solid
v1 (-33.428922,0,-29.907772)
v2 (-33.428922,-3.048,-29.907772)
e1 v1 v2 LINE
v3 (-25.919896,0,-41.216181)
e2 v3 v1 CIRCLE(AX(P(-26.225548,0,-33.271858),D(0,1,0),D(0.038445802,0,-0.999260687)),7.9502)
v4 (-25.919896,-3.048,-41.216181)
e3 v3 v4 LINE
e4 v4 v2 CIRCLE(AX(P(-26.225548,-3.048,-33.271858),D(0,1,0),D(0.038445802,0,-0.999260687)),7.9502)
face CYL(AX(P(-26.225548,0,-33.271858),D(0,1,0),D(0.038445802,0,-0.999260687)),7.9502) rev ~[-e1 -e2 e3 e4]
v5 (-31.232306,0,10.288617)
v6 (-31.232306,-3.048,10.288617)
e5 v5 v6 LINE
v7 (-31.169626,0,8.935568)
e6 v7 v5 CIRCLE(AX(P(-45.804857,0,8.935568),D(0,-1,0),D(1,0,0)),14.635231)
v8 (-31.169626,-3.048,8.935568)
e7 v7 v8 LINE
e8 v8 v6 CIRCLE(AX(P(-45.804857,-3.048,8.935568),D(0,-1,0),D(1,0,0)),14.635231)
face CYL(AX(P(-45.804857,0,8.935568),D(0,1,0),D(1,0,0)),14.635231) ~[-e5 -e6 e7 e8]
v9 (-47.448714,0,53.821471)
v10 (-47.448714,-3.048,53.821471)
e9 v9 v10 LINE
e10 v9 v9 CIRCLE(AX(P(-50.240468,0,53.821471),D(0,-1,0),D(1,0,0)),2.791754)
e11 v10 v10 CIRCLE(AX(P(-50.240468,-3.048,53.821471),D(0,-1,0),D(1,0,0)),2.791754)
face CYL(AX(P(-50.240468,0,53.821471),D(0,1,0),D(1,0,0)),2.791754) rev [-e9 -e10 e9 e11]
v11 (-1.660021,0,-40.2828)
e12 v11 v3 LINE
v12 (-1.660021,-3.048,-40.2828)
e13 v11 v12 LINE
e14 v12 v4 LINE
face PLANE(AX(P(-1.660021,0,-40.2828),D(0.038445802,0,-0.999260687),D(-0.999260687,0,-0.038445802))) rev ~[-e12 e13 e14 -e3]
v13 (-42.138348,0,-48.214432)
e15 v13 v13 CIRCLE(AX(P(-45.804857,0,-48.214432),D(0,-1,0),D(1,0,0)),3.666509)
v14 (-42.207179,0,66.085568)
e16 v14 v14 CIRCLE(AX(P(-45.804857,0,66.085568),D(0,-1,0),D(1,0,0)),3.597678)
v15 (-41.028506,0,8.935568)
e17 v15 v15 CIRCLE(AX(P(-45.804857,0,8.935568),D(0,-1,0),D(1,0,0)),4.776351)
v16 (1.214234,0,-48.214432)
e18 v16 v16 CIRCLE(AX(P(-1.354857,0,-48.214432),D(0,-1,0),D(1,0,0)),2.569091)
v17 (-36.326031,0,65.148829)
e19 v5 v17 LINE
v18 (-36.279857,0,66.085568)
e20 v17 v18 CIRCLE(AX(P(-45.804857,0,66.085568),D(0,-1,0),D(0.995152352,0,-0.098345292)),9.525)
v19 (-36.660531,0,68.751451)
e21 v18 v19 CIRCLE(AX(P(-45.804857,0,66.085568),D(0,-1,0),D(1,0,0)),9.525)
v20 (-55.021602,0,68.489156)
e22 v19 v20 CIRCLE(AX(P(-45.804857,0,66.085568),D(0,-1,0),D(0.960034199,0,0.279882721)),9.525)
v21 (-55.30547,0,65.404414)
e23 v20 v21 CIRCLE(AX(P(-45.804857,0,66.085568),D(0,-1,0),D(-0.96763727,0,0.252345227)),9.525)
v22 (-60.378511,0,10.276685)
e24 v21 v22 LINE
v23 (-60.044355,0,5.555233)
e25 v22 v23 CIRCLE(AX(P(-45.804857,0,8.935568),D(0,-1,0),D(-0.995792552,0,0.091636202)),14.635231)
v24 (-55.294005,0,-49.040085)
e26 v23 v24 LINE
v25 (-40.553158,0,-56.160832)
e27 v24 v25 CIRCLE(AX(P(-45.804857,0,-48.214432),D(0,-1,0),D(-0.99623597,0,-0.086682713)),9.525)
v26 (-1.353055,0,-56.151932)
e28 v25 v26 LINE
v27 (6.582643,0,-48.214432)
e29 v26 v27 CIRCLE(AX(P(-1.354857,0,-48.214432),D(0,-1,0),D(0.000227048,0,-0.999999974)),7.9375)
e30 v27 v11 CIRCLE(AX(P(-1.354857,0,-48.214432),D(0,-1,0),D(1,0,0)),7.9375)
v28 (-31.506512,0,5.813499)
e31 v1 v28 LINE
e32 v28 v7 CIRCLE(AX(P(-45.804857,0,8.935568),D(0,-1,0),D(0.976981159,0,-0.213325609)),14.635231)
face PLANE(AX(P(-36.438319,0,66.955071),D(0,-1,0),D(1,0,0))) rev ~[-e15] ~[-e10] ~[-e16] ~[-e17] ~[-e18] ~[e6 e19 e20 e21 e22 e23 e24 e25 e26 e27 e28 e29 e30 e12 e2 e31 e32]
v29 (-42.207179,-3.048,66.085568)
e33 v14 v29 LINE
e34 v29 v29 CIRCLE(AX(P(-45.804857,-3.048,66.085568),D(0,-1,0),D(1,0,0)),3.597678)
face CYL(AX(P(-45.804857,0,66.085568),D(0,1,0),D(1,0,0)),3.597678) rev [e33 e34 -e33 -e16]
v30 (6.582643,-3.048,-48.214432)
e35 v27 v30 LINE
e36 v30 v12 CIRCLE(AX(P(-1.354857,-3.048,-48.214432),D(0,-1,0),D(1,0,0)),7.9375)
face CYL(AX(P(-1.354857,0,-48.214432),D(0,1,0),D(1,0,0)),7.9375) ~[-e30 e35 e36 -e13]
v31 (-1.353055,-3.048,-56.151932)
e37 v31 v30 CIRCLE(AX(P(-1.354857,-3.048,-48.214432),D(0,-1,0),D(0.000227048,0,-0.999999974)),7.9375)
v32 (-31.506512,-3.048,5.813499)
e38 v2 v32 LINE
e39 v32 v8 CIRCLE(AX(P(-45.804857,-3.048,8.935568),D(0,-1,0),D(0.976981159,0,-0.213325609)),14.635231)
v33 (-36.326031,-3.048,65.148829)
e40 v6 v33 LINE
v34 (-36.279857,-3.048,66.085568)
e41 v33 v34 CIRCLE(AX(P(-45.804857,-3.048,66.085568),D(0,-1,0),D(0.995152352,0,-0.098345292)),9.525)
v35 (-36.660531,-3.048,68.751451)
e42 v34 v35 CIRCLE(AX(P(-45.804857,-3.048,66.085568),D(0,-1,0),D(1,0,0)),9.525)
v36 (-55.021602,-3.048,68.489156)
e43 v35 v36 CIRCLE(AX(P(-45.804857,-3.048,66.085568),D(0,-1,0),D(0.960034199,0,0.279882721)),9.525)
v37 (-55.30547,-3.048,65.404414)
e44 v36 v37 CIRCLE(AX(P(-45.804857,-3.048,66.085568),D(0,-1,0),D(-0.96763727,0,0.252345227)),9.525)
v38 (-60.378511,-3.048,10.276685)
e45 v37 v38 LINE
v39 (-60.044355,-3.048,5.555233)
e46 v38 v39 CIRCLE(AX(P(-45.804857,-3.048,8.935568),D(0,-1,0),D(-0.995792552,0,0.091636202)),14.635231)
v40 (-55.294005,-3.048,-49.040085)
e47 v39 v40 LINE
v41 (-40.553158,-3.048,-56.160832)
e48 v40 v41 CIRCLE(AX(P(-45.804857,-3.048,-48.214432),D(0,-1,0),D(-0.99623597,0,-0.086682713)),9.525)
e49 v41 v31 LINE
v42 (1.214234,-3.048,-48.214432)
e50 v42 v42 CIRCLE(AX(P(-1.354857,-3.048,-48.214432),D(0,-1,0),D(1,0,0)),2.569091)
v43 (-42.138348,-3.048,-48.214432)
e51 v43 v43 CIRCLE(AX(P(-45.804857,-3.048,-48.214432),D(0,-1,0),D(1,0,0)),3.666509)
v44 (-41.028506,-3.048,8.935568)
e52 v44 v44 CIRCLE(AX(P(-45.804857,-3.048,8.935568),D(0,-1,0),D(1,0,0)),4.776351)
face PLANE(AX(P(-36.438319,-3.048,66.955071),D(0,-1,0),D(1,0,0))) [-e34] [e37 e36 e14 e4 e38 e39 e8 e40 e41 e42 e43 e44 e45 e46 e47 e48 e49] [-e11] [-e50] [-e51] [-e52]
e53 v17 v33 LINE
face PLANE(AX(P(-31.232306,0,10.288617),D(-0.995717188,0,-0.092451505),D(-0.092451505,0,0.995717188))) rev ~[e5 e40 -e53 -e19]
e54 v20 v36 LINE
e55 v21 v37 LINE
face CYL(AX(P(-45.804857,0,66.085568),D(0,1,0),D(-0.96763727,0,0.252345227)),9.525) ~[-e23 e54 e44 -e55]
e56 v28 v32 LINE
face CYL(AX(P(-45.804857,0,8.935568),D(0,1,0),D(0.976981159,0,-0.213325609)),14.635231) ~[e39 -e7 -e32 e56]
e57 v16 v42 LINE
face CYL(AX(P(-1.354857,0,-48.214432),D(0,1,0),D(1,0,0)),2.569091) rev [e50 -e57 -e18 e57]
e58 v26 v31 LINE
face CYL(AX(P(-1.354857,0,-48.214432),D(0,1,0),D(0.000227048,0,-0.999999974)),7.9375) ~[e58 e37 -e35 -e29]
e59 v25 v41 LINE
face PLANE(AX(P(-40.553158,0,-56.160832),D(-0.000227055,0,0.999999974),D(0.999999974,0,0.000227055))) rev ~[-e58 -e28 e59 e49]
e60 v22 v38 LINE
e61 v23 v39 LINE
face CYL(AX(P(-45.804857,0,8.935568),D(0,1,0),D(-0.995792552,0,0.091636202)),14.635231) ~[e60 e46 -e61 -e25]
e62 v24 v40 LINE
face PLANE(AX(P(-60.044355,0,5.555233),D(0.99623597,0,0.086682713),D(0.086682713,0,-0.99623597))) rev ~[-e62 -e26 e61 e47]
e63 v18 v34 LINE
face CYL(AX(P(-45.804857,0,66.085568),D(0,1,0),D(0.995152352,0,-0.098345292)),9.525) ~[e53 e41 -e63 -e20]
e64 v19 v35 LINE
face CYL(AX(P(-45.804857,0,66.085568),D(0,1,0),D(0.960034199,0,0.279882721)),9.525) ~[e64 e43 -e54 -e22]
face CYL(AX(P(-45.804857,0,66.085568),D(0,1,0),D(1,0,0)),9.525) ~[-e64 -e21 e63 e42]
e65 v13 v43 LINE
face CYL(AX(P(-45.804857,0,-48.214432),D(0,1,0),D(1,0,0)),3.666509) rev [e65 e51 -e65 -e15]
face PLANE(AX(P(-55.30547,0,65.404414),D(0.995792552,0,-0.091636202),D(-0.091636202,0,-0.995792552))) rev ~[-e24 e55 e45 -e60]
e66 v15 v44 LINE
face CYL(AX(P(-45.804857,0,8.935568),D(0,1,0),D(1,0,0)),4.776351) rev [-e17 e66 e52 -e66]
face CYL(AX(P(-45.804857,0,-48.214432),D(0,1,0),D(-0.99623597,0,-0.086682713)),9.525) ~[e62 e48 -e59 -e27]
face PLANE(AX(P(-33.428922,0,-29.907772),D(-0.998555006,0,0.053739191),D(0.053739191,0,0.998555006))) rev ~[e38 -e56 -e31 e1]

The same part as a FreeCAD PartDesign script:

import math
import FreeCAD as App
import Part
import Sketcher

V = App.Vector
Q = App.Units.Quantity

doc = App.newDocument("Part")
body = doc.addObject("PartDesign::Body", "Body")

sketch1 = body.newObject("Sketcher::SketchObject", "Sketch")
sketch1.AttachmentSupport = (doc.getObject("XZ_Plane"), [""])
sketch1.MapMode = "FlatFace"
sketch1.addGeometry([
    Part.ArcOfCircle(Part.Circle(V(-45.804857, 66.085568, 0), V(0, 0, 1), 9.525), math.radians(-5.643893), math.radians(0)),
    Part.ArcOfCircle(Part.Circle(V(-45.804857, 66.085568, 0), V(0, 0, 1), 9.525), math.radians(0), math.radians(16.253205)),
    Part.ArcOfCircle(Part.Circle(V(-45.804857, 66.085568, 0), V(0, 0, 1), 9.525), math.radians(16.253205), math.radians(165.383666)),
    Part.ArcOfCircle(Part.Circle(V(-45.804857, 66.085568, 0), V(0, 0, 1), 9.525), math.radians(165.383666), math.radians(184.100847)),
    Part.LineSegment(V(-55.30547, 65.404414, 0), V(-60.378511, 10.276685, 0)),
    Part.ArcOfCircle(Part.Circle(V(-45.804857, 8.935568, 0), V(0, 0, 1), 14.635231), math.radians(174.742256), math.radians(193.35433)),
    Part.LineSegment(V(-60.044355, 5.555233, 0), V(-55.294005, -49.040085, 0)),
    Part.ArcOfCircle(Part.Circle(V(-45.804857, -48.214432, 0), V(0, 0, 1), 9.525), math.radians(-175.027206), math.radians(-56.539669)),
    Part.LineSegment(V(-40.553158, -56.160832, 0), V(-1.353055, -56.151932, 0)),
    Part.ArcOfCircle(Part.Circle(V(-1.354857, -48.214432, 0), V(0, 0, 1), 7.9375), math.radians(-89.986991), math.radians(0)),
    Part.ArcOfCircle(Part.Circle(V(-1.354857, -48.214432, 0), V(0, 0, 1), 7.9375), math.radians(0), math.radians(92.203325)),
    Part.LineSegment(V(-1.660021, -40.2828, 0), V(-25.919896, -41.216181, 0)),
    Part.ArcOfCircle(Part.Circle(V(-26.225548, -33.271858, 0), V(0, 0, 1), 7.9502), math.radians(154.966701), math.radians(272.203325)),
    Part.LineSegment(V(-33.428922, -29.907772, 0), V(-31.506512, 5.813499, 0)),
    Part.ArcOfCircle(Part.Circle(V(-45.804857, 8.935568, 0), V(0, 0, 1), 14.635231), math.radians(-12.317313), math.radians(0)),
    Part.ArcOfCircle(Part.Circle(V(-45.804857, 8.935568, 0), V(0, 0, 1), 14.635231), math.radians(0), math.radians(5.304656)),
    Part.LineSegment(V(-31.232306, 10.288617, 0), V(-36.326031, 65.148829, 0)),
    Part.Circle(V(-45.804857, -48.214432, 0), V(0, 0, 1), 3.666509),
    Part.Circle(V(-1.354857, -48.214432, 0), V(0, 0, 1), 2.569091),
    Part.Circle(V(-45.804857, 8.935568, 0), V(0, 0, 1), 4.776351),
    Part.Circle(V(-50.240468, 53.821471, 0), V(0, 0, 1), 2.791754),
    Part.Circle(V(-45.804857, 66.085568, 0), V(0, 0, 1), 3.597678),
], False)
sketch1.addConstraint([
    Sketcher.Constraint("Coincident", 0, 2, 1, 1),
    Sketcher.Constraint("Coincident", 1, 2, 2, 1),
    Sketcher.Constraint("Coincident", 2, 2, 3, 1),
    Sketcher.Constraint("Coincident", 3, 2, 4, 1),
    Sketcher.Constraint("Coincident", 4, 2, 5, 1),
    Sketcher.Constraint("Coincident", 5, 2, 6, 1),
    Sketcher.Constraint("Coincident", 6, 2, 7, 1),
    Sketcher.Constraint("Coincident", 7, 2, 8, 1),
    Sketcher.Constraint("Coincident", 8, 2, 9, 1),
    Sketcher.Constraint("Coincident", 9, 2, 10, 1),
    Sketcher.Constraint("Coincident", 10, 2, 11, 1),
    Sketcher.Constraint("Coincident", 11, 2, 12, 2),
    Sketcher.Constraint("Coincident", 12, 1, 13, 1),
    Sketcher.Constraint("Coincident", 13, 2, 14, 1),
    Sketcher.Constraint("Coincident", 14, 2, 15, 1),
    Sketcher.Constraint("Coincident", 15, 2, 16, 1),
    Sketcher.Constraint("Coincident", 16, 2, 0, 1),
    Sketcher.Constraint("Coincident", 1, 3, 0, 3),
    Sketcher.Constraint("Coincident", 2, 3, 0, 3),
    Sketcher.Constraint("Coincident", 3, 3, 0, 3),
    Sketcher.Constraint("Coincident", 10, 3, 9, 3),
    Sketcher.Constraint("Coincident", 14, 3, 5, 3),
    Sketcher.Constraint("Coincident", 15, 3, 5, 3),
    Sketcher.Constraint("Coincident", 17, 3, 7, 3),
    Sketcher.Constraint("Coincident", 18, 3, 9, 3),
    Sketcher.Constraint("Coincident", 19, 3, 5, 3),
    Sketcher.Constraint("Coincident", 21, 3, 0, 3),
    Sketcher.Constraint("Radius", 0, Q("0.375 in")),
    Sketcher.Constraint("Radius", 7, Q("0.375 in")),
    Sketcher.Constraint("Radius", 9, Q("0.3125 in")),
    Sketcher.Constraint("Radius", 12, Q("0.313 in")),
    Sketcher.Constraint("DistanceY", 7, 3, 1, 3, Q("4.5 in")),
    Sketcher.Constraint("DistanceY", 9, 3, 3, 3, Q("4.5 in")),
    Sketcher.Constraint("Diameter", 19, Q("9.552702 mm")),
    Sketcher.Constraint("DistanceY", 5, 3, 1, 3, Q("2.25 in")),
    Sketcher.Constraint("DistanceX", 7, 3, 9, 3, Q("1.75 in")),
    Sketcher.Constraint("DistanceX", 5, 3, 9, 3, Q("1.75 in")),
    Sketcher.Constraint("DistanceX", 3, 3, 9, 3, Q("1.75 in")),
    Sketcher.Constraint("Diameter", 18, Q("5.138182 mm")),
    Sketcher.Constraint("Diameter", 20, Q("5.583508 mm")),
    Sketcher.Constraint("Radius", 5, Q("14.635231 mm")),
    Sketcher.Constraint("Radius", 14, Q("14.635231 mm")),
    Sketcher.Constraint("DistanceY", 8, 2, 9, 2, Q("0.3125 in")),
    Sketcher.Constraint("Diameter", 17, Q("7.333018 mm")),
    Sketcher.Constraint("Diameter", 21, Q("7.195355 mm")),
    Sketcher.Constraint("DistanceY", 19, 3, 4, 2, Q("0.0527999 in")),
    Sketcher.Constraint("DistanceX", 2, 2, -1, 1, Q("55.021602 mm")),
    Sketcher.Constraint("DistanceY", 10, 2, -1, 1, Q("40.2828 mm")),
    Sketcher.Constraint("DistanceY", -1, 1, 13, 2, Q("5.813499 mm")),
    Sketcher.Constraint("DistanceX", 5, 2, 19, 3, Q("14.239498 mm")),
    Sketcher.Constraint("DistanceX", 7, 3, 7, 2, Q("5.251699 mm")),
    Sketcher.Constraint("DistanceX", 1, 2, 16, 2, Q("0.3345 mm")),
    Sketcher.Constraint("Distance", 13, Q("35.772962 mm")),
    Sketcher.Constraint("Distance", 16, Q("55.096179 mm")),
    Sketcher.Constraint("DistanceY", -1, 1, 0, 3, Q("66.085568 mm")),
    Sketcher.Constraint("DistanceX", 12, 3, -1, 1, Q("26.225548 mm")),
    Sketcher.Constraint("DistanceY", 12, 3, -1, 1, Q("33.271858 mm")),
    Sketcher.Constraint("DistanceX", 20, 3, -1, 1, Q("50.240468 mm")),
    Sketcher.Constraint("DistanceY", -1, 1, 20, 3, Q("53.821471 mm")),
    Sketcher.Constraint("DistanceY", -1, 1, 0, 2, Q("66.085568 mm")),
    Sketcher.Constraint("DistanceX", 1, 2, -1, 1, Q("36.660531 mm")),
    Sketcher.Constraint("DistanceY", -1, 1, 1, 2, Q("68.751451 mm")),
    Sketcher.Constraint("DistanceX", 3, 2, -1, 1, Q("55.30547 mm")),
    Sketcher.Constraint("DistanceY", 11, 2, -1, 1, Q("41.216181 mm")),
    Sketcher.Constraint("DistanceY", -1, 1, 14, 2, Q("8.935568 mm")),
    Sketcher.Constraint("Distance", 6, Q("54.801593 mm")),
    Sketcher.Constraint("Distance", 8, Q("39.200104 mm")),
])
pad1 = body.newObject("PartDesign::Pad", "Pad")
pad1.Profile = sketch1
pad1.Length = Q("0.12 in")

doc.recompute()
